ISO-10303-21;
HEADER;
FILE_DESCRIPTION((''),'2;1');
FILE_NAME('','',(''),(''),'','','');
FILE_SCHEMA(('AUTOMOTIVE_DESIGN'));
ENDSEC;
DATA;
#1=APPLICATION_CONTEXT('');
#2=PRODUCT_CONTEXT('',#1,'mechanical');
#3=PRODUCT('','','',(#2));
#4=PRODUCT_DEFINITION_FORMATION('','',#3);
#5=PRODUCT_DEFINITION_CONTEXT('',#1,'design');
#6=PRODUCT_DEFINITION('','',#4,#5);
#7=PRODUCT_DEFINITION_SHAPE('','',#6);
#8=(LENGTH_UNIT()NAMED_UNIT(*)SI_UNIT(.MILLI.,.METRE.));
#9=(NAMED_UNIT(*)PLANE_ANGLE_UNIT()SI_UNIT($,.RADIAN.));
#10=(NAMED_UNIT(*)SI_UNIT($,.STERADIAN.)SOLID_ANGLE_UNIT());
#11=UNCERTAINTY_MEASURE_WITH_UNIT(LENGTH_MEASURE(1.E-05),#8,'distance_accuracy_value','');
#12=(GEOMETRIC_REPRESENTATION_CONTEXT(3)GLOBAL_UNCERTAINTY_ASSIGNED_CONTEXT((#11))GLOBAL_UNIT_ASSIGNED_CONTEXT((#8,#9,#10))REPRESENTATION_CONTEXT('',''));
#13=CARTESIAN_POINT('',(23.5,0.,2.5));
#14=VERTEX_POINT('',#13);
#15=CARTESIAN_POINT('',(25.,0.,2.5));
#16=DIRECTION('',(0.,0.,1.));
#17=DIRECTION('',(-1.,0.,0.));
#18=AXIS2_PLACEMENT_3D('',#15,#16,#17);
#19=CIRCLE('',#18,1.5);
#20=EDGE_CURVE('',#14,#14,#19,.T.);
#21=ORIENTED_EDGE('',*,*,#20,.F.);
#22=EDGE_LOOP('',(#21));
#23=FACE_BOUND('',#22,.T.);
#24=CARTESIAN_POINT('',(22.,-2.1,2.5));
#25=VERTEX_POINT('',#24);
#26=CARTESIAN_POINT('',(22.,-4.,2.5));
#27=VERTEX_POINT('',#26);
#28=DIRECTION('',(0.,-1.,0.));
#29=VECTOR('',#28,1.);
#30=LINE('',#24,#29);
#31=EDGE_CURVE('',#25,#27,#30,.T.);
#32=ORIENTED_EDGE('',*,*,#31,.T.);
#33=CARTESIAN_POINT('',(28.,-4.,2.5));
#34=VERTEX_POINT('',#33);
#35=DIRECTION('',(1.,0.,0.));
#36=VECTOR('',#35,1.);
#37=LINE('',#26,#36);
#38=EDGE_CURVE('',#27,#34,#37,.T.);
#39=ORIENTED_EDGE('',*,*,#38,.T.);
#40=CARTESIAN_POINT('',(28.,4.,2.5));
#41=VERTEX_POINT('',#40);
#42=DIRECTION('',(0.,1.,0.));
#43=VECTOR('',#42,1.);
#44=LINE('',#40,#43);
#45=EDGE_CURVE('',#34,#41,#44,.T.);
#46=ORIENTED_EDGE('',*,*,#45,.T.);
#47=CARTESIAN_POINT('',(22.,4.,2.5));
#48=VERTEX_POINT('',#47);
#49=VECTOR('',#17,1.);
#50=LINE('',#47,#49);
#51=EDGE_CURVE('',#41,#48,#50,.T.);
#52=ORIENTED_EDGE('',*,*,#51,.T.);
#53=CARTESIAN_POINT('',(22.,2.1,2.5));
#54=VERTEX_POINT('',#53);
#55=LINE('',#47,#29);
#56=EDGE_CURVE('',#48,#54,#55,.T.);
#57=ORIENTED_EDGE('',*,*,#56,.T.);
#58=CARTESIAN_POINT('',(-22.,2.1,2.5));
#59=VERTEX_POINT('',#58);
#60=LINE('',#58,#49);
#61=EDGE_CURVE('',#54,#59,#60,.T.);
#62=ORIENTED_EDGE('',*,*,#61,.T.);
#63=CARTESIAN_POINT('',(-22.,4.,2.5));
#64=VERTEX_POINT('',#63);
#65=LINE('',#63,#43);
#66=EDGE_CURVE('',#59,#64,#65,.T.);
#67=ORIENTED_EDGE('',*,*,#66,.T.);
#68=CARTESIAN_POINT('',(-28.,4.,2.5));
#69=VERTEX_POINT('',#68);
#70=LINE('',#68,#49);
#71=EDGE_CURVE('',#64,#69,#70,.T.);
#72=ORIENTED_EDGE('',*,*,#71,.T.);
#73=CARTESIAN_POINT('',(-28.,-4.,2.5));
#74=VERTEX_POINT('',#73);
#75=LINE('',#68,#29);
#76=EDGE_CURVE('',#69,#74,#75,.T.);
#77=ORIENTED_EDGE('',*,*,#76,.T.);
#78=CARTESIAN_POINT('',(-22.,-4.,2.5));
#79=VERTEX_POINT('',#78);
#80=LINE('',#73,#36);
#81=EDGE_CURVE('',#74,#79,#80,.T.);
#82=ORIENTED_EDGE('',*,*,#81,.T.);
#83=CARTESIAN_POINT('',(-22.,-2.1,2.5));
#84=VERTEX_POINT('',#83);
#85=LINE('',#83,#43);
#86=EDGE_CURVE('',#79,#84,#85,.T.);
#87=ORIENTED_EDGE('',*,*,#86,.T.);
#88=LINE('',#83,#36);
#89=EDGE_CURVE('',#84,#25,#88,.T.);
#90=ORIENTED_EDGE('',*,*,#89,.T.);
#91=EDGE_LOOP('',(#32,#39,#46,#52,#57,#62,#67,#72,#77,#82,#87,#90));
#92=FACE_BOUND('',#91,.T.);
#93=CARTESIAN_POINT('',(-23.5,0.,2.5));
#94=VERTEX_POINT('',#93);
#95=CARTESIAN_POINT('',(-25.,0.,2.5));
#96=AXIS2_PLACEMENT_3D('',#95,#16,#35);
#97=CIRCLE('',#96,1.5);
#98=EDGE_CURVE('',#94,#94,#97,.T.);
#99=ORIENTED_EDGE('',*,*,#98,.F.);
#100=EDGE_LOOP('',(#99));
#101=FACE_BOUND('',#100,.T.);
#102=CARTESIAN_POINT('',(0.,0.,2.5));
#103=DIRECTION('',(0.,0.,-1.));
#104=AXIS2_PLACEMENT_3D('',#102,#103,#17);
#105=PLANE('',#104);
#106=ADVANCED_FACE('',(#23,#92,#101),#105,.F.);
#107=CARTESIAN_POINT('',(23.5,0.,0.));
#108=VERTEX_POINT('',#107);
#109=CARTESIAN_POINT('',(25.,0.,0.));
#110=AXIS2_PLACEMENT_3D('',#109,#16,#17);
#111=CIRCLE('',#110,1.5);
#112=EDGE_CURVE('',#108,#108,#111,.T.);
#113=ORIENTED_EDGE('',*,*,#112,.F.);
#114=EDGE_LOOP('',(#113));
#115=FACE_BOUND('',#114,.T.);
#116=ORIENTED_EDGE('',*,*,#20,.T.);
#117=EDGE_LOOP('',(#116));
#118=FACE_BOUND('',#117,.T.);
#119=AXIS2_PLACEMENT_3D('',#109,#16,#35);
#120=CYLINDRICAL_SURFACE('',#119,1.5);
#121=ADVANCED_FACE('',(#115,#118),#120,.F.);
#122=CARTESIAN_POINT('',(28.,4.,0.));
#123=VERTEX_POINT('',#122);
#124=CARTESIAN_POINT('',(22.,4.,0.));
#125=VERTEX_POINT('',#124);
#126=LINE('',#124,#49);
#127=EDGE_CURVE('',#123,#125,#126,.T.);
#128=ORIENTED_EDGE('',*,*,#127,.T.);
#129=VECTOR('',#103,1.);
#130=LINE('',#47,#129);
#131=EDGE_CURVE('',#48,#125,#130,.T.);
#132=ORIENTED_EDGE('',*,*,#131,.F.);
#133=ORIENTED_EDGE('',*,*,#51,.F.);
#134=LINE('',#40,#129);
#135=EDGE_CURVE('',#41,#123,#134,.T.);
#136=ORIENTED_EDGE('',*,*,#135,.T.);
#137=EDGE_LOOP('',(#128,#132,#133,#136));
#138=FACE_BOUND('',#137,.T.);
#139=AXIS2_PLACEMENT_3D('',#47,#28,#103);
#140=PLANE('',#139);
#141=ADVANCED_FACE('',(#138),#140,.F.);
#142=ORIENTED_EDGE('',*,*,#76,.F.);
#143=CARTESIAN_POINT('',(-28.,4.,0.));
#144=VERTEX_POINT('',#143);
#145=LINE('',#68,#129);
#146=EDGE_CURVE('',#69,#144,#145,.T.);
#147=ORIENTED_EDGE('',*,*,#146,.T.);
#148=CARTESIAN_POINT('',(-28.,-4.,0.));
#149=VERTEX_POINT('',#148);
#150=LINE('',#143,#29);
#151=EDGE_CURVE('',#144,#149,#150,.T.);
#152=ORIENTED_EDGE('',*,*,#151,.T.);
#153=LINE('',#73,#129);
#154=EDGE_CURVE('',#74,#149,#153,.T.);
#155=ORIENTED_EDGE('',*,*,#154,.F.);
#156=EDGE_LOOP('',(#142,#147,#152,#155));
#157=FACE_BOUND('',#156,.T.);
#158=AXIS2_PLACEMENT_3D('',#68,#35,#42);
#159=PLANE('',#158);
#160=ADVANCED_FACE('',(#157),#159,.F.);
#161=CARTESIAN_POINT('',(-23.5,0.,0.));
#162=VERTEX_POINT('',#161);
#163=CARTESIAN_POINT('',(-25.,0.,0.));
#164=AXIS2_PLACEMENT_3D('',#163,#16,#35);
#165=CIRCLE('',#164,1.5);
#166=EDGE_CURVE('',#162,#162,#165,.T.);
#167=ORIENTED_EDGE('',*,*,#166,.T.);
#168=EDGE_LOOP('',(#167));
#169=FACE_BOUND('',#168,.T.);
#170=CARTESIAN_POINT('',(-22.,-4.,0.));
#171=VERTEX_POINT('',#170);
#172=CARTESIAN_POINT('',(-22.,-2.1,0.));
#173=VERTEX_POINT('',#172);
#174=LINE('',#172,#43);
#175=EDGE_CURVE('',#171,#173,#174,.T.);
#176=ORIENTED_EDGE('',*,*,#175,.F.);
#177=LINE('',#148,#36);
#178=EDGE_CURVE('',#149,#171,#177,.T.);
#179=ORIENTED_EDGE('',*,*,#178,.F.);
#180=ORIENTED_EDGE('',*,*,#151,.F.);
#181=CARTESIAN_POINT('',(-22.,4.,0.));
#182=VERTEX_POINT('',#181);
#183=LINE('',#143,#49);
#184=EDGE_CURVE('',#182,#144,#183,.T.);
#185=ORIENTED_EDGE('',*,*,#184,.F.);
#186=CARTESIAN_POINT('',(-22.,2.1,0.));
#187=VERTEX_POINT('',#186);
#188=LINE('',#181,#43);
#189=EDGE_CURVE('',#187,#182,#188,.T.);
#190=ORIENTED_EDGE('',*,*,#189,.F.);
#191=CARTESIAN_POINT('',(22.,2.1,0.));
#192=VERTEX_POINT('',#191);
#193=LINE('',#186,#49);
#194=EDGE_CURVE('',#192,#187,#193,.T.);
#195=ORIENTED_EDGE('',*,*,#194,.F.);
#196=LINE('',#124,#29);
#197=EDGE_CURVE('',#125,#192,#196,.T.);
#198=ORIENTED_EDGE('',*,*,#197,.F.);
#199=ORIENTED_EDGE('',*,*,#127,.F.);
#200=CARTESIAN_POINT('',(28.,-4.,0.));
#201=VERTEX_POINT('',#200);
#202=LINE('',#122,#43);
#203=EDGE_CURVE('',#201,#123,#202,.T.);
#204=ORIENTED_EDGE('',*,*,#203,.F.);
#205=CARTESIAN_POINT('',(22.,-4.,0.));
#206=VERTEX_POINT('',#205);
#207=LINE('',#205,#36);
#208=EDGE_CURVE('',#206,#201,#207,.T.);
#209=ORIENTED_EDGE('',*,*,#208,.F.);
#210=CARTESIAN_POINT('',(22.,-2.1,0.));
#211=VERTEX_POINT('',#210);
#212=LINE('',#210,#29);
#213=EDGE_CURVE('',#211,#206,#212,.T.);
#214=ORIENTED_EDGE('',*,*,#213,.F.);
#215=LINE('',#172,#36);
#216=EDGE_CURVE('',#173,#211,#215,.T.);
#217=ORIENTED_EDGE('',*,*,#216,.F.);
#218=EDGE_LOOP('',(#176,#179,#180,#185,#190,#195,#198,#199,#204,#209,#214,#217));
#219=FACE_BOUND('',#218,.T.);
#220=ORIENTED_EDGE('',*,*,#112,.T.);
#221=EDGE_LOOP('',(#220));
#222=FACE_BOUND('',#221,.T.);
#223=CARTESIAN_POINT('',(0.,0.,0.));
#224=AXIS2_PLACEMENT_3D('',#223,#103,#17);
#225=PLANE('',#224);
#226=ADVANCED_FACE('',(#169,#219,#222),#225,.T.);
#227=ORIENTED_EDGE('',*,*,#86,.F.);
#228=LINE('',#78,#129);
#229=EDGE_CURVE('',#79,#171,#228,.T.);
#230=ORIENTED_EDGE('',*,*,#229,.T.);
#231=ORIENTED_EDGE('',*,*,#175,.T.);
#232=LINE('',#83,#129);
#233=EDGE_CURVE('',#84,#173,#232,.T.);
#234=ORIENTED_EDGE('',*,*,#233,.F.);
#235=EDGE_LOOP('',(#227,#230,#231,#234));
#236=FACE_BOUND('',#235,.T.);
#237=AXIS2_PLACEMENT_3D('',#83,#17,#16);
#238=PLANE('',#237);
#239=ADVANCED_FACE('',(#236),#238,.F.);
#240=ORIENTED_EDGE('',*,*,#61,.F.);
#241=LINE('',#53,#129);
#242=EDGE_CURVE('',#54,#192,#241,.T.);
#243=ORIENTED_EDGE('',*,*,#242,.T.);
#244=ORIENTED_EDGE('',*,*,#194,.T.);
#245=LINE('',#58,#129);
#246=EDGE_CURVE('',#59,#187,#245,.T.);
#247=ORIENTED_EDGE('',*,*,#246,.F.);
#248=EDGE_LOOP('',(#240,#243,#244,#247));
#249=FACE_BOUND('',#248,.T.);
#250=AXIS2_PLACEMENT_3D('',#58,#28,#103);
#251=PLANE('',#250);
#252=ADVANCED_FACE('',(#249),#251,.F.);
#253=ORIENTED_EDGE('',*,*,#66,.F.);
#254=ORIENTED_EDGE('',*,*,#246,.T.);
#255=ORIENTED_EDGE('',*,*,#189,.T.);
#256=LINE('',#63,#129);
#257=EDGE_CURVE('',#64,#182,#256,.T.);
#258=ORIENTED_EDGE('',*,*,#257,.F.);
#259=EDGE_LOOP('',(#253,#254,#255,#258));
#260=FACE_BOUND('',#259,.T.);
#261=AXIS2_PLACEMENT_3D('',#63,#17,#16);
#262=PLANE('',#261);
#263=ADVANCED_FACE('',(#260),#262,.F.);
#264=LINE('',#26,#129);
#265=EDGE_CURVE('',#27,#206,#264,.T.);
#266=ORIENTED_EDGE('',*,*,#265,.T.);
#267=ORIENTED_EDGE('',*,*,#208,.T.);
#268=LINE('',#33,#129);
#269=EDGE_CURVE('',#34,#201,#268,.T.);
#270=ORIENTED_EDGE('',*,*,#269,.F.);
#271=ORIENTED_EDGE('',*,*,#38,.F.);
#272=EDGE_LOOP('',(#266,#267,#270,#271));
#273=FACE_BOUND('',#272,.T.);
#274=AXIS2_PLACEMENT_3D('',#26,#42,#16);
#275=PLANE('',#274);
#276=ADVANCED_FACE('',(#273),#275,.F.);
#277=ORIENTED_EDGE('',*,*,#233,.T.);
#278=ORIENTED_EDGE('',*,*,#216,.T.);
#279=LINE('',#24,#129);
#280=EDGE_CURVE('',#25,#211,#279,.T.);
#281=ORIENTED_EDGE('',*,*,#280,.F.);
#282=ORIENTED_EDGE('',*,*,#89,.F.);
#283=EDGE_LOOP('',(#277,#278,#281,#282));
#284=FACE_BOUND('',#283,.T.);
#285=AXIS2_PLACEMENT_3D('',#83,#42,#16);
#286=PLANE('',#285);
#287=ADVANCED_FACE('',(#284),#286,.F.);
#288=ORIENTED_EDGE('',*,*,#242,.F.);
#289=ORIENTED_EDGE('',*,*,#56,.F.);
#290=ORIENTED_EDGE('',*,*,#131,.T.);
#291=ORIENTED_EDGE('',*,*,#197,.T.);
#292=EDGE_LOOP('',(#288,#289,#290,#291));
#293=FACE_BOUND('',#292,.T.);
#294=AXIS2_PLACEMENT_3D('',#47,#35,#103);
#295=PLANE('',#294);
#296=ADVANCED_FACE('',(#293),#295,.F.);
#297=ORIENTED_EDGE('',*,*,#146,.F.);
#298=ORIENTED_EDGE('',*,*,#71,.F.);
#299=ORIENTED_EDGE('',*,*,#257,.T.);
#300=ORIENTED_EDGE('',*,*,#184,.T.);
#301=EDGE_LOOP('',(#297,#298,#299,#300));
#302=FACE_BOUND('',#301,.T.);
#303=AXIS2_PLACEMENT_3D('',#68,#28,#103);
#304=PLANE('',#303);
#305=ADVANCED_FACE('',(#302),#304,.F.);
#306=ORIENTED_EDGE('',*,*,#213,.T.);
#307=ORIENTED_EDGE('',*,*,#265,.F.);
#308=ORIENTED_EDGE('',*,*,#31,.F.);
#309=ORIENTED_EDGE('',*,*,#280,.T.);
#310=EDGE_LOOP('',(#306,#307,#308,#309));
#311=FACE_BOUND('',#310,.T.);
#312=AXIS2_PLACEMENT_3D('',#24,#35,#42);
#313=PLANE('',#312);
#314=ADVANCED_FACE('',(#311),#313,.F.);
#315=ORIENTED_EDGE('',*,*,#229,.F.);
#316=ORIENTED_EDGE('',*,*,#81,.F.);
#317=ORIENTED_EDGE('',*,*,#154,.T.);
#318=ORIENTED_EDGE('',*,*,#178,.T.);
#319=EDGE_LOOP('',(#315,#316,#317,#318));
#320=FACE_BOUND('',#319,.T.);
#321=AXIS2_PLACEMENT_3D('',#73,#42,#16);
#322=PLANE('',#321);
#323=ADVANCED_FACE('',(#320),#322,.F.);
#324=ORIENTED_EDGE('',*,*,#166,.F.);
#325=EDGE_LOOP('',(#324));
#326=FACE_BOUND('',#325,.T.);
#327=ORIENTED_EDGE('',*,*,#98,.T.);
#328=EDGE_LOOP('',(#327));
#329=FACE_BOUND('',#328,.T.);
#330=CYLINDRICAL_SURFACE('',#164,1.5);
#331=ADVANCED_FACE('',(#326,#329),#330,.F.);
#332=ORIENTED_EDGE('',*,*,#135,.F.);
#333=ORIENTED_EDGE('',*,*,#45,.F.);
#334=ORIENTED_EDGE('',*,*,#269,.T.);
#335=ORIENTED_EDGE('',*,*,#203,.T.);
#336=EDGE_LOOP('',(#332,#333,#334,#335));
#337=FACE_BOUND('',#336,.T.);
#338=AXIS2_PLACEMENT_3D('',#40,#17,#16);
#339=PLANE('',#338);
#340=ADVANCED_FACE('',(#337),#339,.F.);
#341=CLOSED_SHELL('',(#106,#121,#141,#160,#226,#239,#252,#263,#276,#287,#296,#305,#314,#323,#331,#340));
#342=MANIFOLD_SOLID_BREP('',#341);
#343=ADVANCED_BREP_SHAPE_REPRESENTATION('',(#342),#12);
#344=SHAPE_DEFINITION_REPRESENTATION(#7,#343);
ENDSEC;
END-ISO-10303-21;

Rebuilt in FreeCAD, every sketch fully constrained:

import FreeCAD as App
import Part
import Sketcher
Q = App.Units.Quantity

doc = App.newDocument("Part")
body = doc.addObject("PartDesign::Body", "Body")

sketch1 = body.newObject("Sketcher::SketchObject", "Sketch")
sketch1.AttachmentSupport = (doc.getObject("XY_Plane"), [""])
sketch1.MapMode = "FlatFace"
sketch1.addGeometry([
    Part.LineSegment(App.Vector(-22, 4, 0), App.Vector(-28, 4, 0)),
    Part.LineSegment(App.Vector(-28, 4, 0), App.Vector(-28, -4, 0)),
    Part.LineSegment(App.Vector(-28, -4, 0), App.Vector(-22, -4, 0)),
    Part.LineSegment(App.Vector(-22, -4, 0), App.Vector(-22, -2.1, 0)),
    Part.LineSegment(App.Vector(-22, -2.1, 0), App.Vector(22, -2.1, 0)),
    Part.LineSegment(App.Vector(22, -2.1, 0), App.Vector(22, -4, 0)),
    Part.LineSegment(App.Vector(22, -4, 0), App.Vector(28, -4, 0)),
    Part.LineSegment(App.Vector(28, -4, 0), App.Vector(28, 4, 0)),
    Part.LineSegment(App.Vector(28, 4, 0), App.Vector(22, 4, 0)),
    Part.LineSegment(App.Vector(22, 4, 0), App.Vector(22, 2.1, 0)),
    Part.LineSegment(App.Vector(22, 2.1, 0), App.Vector(-22, 2.1, 0)),
    Part.LineSegment(App.Vector(-22, 2.1, 0), App.Vector(-22, 4, 0)),
], False)
sketch1.addConstraint([
    Sketcher.Constraint("Coincident", 0, 2, 1, 1),
    Sketcher.Constraint("Coincident", 1, 2, 2, 1),
    Sketcher.Constraint("Coincident", 2, 2, 3, 1),
    Sketcher.Constraint("Coincident", 3, 2, 4, 1),
    Sketcher.Constraint("Coincident", 4, 2, 5, 1),
    Sketcher.Constraint("Coincident", 5, 2, 6, 1),
    Sketcher.Constraint("Coincident", 6, 2, 7, 1),
    Sketcher.Constraint("Coincident", 7, 2, 8, 1),
    Sketcher.Constraint("Coincident", 8, 2, 9, 1),
    Sketcher.Constraint("Coincident", 9, 2, 10, 1),
    Sketcher.Constraint("Coincident", 10, 2, 11, 1),
    Sketcher.Constraint("Coincident", 11, 2, 0, 1),
    Sketcher.Constraint("Horizontal", 0),
    Sketcher.Constraint("Vertical", 1),
    Sketcher.Constraint("Horizontal", 2),
    Sketcher.Constraint("Vertical", 3),
    Sketcher.Constraint("Horizontal", 4),
    Sketcher.Constraint("Vertical", 5),
    Sketcher.Constraint("Horizontal", 6),
    Sketcher.Constraint("Vertical", 7),
    Sketcher.Constraint("Horizontal", 8),
    Sketcher.Constraint("Vertical", 9),
    Sketcher.Constraint("Horizontal", 10),
    Sketcher.Constraint("Vertical", 11),
    Sketcher.Constraint("Symmetric", 0, 2, 6, 2, -1, 1),
    Sketcher.Constraint("Symmetric", 2, 2, 8, 2, -1, 1),
    Sketcher.Constraint("Symmetric", 4, 2, 10, 2, -1, 1),
    Sketcher.Constraint("Symmetric", 2, 2, 5, 2, -2),
    Sketcher.Constraint("DistanceX", 0, 2, 0, 1, Q("6 mm")),
    Sketcher.Constraint("DistanceX", 4, 1, 4, 2, Q("44 mm")),
    Sketcher.Constraint("DistanceY", 1, 2, 1, 1, Q("8 mm")),
    Sketcher.Constraint("DistanceY", 3, 1, 3, 2, Q("1.9 mm")),
])
pad1 = body.newObject("PartDesign::Pad", "Pad")
pad1.Profile = sketch1
pad1.Length = 2.5

sketch2 = body.newObject("Sketcher::SketchObject", "Sketch001")
sketch2.AttachmentSupport = (doc.getObject("XY_Plane"), [""])
sketch2.MapMode = "FlatFace"
sketch2.AttachmentOffset = App.Placement(App.Vector(0, 0, 2.5), App.Rotation())
sketch2.addGeometry([
    Part.Circle(App.Vector(-25, 0, 0), App.Vector(0, 0, 1), 1.5),
    Part.Circle(App.Vector(25, 0, 0), App.Vector(0, 0, 1), 1.5),
], False)
sketch2.addConstraint([
    Sketcher.Constraint("Equal", 0, 1),
    Sketcher.Constraint("Symmetric", 0, 3, 1, 3, -1, 1),
    Sketcher.Constraint("PointOnObject", 0, 3, -1),
    Sketcher.Constraint("Diameter", 0, Q("3 mm")),
    Sketcher.Constraint("DistanceX", 0, 3, -1, 1, Q("25 mm")),
])
pocket1 = body.newObject("PartDesign::Pocket", "Pocket")
pocket1.Profile = sketch2
pocket1.Length = 2.5

doc.recompute()
